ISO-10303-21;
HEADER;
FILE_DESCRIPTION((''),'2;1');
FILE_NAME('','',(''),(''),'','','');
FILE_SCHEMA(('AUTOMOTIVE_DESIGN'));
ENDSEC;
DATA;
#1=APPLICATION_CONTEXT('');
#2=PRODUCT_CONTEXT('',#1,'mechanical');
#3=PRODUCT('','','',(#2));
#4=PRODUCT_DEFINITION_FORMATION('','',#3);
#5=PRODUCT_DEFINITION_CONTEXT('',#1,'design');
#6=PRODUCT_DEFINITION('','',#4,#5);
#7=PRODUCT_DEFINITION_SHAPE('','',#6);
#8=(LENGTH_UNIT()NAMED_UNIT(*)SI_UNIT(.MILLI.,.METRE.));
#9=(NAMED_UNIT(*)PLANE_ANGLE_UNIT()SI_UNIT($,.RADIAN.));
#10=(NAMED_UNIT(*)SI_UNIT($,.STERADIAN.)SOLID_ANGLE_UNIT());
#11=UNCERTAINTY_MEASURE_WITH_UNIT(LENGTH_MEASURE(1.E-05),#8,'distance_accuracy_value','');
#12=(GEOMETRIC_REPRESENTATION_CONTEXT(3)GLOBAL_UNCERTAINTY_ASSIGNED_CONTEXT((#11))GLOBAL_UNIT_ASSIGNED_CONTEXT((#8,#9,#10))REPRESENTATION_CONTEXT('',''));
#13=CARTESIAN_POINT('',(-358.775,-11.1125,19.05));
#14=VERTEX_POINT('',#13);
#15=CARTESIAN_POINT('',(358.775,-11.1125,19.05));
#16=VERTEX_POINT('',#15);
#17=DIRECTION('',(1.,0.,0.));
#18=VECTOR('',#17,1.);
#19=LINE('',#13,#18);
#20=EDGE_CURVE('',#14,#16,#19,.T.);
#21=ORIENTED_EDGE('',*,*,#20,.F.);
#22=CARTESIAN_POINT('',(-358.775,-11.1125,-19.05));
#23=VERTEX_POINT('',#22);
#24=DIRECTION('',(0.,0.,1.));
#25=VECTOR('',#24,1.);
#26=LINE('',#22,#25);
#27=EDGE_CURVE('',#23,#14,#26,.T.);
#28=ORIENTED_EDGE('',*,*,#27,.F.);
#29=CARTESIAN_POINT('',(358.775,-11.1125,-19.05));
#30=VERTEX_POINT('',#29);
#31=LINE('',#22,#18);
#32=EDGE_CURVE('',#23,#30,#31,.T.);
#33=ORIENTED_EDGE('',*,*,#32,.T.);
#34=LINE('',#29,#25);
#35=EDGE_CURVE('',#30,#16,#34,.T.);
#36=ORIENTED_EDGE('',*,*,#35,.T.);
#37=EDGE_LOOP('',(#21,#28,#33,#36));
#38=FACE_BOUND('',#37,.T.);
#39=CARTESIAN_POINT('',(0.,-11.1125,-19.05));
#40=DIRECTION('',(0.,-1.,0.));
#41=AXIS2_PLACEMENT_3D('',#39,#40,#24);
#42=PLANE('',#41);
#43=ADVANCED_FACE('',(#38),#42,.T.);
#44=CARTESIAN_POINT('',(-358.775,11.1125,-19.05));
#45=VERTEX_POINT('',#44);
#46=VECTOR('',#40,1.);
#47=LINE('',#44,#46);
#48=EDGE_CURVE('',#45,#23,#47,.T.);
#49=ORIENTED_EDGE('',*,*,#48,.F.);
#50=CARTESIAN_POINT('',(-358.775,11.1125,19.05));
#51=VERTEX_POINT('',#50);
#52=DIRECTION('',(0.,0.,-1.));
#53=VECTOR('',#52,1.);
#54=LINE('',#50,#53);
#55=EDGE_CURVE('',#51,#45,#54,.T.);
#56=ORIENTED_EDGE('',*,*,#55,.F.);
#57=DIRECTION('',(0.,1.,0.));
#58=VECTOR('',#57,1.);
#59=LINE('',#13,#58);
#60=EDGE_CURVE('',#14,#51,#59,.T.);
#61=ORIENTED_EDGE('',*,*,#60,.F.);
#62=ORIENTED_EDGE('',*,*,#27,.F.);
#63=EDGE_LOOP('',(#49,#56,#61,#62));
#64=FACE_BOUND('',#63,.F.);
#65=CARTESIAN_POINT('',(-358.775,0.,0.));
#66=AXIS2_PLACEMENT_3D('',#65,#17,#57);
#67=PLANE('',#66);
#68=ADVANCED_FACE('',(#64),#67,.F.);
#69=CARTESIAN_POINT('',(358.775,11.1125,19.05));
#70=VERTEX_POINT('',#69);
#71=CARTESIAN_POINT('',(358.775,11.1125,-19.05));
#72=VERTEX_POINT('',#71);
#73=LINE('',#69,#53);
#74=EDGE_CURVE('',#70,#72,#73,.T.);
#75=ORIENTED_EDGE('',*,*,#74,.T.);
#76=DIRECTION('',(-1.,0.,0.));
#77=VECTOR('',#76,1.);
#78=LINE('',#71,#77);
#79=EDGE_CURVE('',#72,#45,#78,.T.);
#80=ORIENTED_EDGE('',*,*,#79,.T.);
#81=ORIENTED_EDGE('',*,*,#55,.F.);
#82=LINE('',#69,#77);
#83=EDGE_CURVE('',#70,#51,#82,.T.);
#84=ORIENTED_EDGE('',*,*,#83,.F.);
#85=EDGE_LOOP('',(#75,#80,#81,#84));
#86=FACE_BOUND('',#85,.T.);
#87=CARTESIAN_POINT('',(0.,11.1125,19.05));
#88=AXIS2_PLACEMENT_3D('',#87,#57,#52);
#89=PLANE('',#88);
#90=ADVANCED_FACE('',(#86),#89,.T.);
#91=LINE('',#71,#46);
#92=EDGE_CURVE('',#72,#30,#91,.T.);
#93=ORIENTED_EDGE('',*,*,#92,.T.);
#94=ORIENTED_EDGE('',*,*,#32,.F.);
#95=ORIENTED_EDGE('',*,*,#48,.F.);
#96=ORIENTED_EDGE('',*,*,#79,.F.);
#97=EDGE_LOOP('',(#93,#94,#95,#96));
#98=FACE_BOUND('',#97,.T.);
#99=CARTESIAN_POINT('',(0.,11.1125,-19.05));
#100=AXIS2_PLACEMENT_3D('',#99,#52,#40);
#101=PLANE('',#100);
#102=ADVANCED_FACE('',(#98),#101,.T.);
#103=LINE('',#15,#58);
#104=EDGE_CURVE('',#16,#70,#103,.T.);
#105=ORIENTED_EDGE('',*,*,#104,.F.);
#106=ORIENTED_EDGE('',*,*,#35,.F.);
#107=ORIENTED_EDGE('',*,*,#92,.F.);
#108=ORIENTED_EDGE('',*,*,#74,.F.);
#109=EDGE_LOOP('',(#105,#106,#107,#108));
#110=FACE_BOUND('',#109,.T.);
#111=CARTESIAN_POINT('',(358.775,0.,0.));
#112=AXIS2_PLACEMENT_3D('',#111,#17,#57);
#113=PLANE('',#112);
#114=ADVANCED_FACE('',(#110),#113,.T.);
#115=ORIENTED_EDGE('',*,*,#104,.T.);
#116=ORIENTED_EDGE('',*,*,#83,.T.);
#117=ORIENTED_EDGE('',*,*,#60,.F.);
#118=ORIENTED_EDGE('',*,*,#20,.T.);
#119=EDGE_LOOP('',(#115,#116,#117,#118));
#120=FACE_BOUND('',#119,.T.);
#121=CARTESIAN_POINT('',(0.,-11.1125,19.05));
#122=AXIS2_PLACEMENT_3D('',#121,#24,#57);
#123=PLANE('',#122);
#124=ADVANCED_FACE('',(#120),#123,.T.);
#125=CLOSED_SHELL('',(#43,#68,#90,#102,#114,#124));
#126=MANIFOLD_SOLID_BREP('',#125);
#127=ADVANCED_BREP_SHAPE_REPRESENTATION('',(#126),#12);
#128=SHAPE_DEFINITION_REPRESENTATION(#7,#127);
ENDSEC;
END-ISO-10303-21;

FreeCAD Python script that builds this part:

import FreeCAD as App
import Part
import Sketcher

V = App.Vector
Q = App.Units.Quantity


def add_polygon(sketch, points):
    """Adds a closed chain of lines whose ends are joined by coincident constraints."""
    first, n = sketch.GeometryCount, len(points)
    for a, b in zip(points, points[1:] + points[:1]):
        sketch.addGeometry(Part.LineSegment(App.Vector(*a, 0), App.Vector(*b, 0)), False)
    for i in range(n):
        sketch.addConstraint(Sketcher.Constraint("Coincident", first + i, 2, first + (i + 1) % n, 1))

doc = App.newDocument("Part")
params = doc.addObject("Spreadsheet::Sheet", "Params")
for row, (alias, value) in enumerate([
    ("sketch1_height", "1.5 in"),
    ("sketch1_width", "0.875 in"),
    ("pad1_length", "28.25 in"),
], start=1):
    params.set(f"A{row}", alias)
    params.set(f"B{row}", "=" + value)
    params.setAlias(f"B{row}", alias)

body = doc.addObject("PartDesign::Body", "Body")

# Sketch on YZ plane
sketch1 = doc.addObject("Sketcher::SketchObject", "Sketch")
body.addObject(sketch1)
sketch1.AttachmentSupport = (doc.YZ_Plane, [""])
sketch1.MapMode = "FlatFace"
add_polygon(sketch1, [(11, 19), (-11, 19), (-11, -19), (11, -19)])  # lines 0-3
sketch1.addConstraint([
    Sketcher.Constraint("Horizontal", 0),
    Sketcher.Constraint("Vertical", 1),
    Sketcher.Constraint("Horizontal", 2),
    Sketcher.Constraint("Vertical", 3),
    Sketcher.Constraint("Symmetric", 0, 2, 2, 2, -1, 1),
    Sketcher.Constraint("DistanceY", 1, 2, 1, 1, Q("1.5 in")),
    Sketcher.Constraint("DistanceX", 0, 2, 0, 1, Q("0.875 in")),
])
sketch1.setExpression("Constraints[9]", "Params.sketch1_height")
sketch1.setExpression("Constraints[10]", "Params.sketch1_width")
pad1 = doc.addObject("PartDesign::Pad", "Pad")
body.addObject(pad1)
pad1.Profile = sketch1
pad1.setExpression("Length", "Params.pad1_length")
pad1.Midplane = True

doc.recompute()
